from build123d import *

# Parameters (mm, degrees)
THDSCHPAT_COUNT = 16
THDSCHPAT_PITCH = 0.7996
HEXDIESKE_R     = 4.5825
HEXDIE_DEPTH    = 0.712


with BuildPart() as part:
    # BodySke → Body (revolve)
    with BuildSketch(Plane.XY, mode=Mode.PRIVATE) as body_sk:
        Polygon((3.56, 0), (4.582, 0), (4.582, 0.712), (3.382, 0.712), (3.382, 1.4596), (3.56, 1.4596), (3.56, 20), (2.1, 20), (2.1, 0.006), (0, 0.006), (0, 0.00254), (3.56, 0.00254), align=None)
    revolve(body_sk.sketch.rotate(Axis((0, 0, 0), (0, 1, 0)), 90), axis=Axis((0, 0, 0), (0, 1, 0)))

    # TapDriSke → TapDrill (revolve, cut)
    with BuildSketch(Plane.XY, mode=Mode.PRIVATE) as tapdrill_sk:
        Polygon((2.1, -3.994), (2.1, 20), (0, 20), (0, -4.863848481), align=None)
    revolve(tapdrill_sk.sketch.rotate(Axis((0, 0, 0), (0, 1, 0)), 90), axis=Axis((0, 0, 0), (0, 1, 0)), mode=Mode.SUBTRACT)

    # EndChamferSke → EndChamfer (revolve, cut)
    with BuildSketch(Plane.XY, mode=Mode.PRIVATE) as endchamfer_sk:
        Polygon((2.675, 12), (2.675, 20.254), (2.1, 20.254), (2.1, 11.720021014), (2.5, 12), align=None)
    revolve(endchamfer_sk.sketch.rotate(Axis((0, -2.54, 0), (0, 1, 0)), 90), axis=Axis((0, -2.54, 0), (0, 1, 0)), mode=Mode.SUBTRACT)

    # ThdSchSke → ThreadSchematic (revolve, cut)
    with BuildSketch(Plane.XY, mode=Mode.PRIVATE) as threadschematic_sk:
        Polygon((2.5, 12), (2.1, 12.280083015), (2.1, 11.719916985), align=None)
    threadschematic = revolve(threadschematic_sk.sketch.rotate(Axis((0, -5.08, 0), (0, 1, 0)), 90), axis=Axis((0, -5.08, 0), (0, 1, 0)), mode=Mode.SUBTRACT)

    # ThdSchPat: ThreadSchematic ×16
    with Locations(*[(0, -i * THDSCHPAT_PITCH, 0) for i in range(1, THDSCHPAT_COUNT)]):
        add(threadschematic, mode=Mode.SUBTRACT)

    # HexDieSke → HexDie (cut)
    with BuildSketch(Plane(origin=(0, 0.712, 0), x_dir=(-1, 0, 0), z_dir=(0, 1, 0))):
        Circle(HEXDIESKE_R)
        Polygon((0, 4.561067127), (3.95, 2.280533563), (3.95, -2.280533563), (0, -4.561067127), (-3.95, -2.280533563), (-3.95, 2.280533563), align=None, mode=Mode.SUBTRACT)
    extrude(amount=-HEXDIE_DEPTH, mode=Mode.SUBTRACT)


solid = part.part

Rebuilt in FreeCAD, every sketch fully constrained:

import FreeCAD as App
import Part
import Sketcher
Q = App.Units.Quantity

doc = App.newDocument("Part")
body = doc.addObject("PartDesign::Body", "Body")

# Sketch on XY plane
sketch1 = body.newObject("Sketcher::SketchObject", "Sketch")
sketch1.AttachmentSupport = (doc.getObject("XY_Plane"), [""])
sketch1.MapMode = "FlatFace"
sketch1.addGeometry([
    Part.LineSegment(App.Vector(3.56, 0, 0), App.Vector(4.582, 0, 0)),  # 0
    Part.LineSegment(App.Vector(4.582, 0, 0), App.Vector(4.582, 0.712, 0)),  # 1
    Part.LineSegment(App.Vector(4.582, 0.712, 0), App.Vector(3.382, 0.712, 0)),  # 2
    Part.LineSegment(App.Vector(3.382, 0.712, 0), App.Vector(3.382, 1.4596, 0)),  # 3
    Part.LineSegment(App.Vector(3.382, 1.4596, 0), App.Vector(3.56, 1.4596, 0)),  # 4
    Part.LineSegment(App.Vector(3.56, 1.4596, 0), App.Vector(3.56, 20, 0)),  # 5
    Part.LineSegment(App.Vector(3.56, 20, 0), App.Vector(2.1, 20, 0)),  # 6
    Part.LineSegment(App.Vector(2.1, 20, 0), App.Vector(2.1, 0.006, 0)),  # 7
    Part.LineSegment(App.Vector(2.1, 0.006, 0), App.Vector(0, 0.006, 0)),  # 8
    Part.LineSegment(App.Vector(0, 0.006, 0), App.Vector(0, 0.0025, 0)),  # 9
    Part.LineSegment(App.Vector(0, 0.0025, 0), App.Vector(3.56, 0.0025, 0)),  # 10
    Part.LineSegment(App.Vector(3.56, 0.0025, 0), App.Vector(3.56, 0, 0)),  # 11
], False)
sketch1.addConstraint([
    Sketcher.Constraint("Coincident", 0, 2, 1, 1),
    Sketcher.Constraint("Coincident", 1, 2, 2, 1),
    Sketcher.Constraint("Coincident", 2, 2, 3, 1),
    Sketcher.Constraint("Coincident", 3, 2, 4, 1),
    Sketcher.Constraint("Coincident", 4, 2, 5, 1),
    Sketcher.Constraint("Coincident", 5, 2, 6, 1),
    Sketcher.Constraint("Coincident", 6, 2, 7, 1),
    Sketcher.Constraint("Coincident", 7, 2, 8, 1),
    Sketcher.Constraint("Coincident", 8, 2, 9, 1),
    Sketcher.Constraint("Coincident", 9, 2, 10, 1),
    Sketcher.Constraint("Coincident", 10, 2, 11, 1),
    Sketcher.Constraint("Coincident", 11, 2, 0, 1),
    Sketcher.Constraint("Horizontal", 0),
    Sketcher.Constraint("Vertical", 1),
    Sketcher.Constraint("Horizontal", 2),
    Sketcher.Constraint("Vertical", 3),
    Sketcher.Constraint("Horizontal", 4),
    Sketcher.Constraint("Vertical", 5),
    Sketcher.Constraint("Horizontal", 6),
    Sketcher.Constraint("Vertical", 7),
    Sketcher.Constraint("Horizontal", 8),
    Sketcher.Constraint("Vertical", 9),
    Sketcher.Constraint("Horizontal", 10),
    Sketcher.Constraint("Vertical", 11),
    Sketcher.Constraint("PointOnObject", 0, 2, -1),
    Sketcher.Constraint("PointOnObject", 8, 2, -2),
    Sketcher.Constraint("Vertical", 5, 2, 10, 2),
    Sketcher.Constraint("DistanceX", 2, 2, 2, 1, 1.2),
    Sketcher.Constraint("DistanceX", 8, 2, 8, 1, 2.1),
    Sketcher.Constraint("DistanceY", -1, 1, 5, 2, 20.0),
    Sketcher.Constraint("DistanceX", 6, 2, 6, 1, 1.46),
    Sketcher.Constraint("DistanceX", 0, 1, 0, 2, 1.022),
    Sketcher.Constraint("DistanceY", 1, 1, 1, 2, 0.712),
    Sketcher.Constraint("DistanceY", 7, 2, 7, 1, 19.994),
    Sketcher.Constraint("DistanceY", 3, 1, 3, 2, 0.7476),
    Sketcher.Constraint("DistanceY", 9, 2, 9, 1, 0.00346),
])
revolution = body.newObject("PartDesign::Revolution", "Revolution")
revolution.Profile = sketch1
revolution.ReferenceAxis = (sketch1, ["V_Axis"])
revolution.Angle = 360

# Sketch on XY plane
sketch2 = body.newObject("Sketcher::SketchObject", "Sketch001")
sketch2.AttachmentSupport = (doc.getObject("XY_Plane"), [""])
sketch2.MapMode = "FlatFace"
sketch2.addGeometry([
    Part.LineSegment(App.Vector(2.1, -4, 0), App.Vector(2.1, 20, 0)),
    Part.LineSegment(App.Vector(2.1, 20, 0), App.Vector(0, 20, 0)),
    Part.LineSegment(App.Vector(0, 20, 0), App.Vector(0, -4.9, 0)),
    Part.LineSegment(App.Vector(0, -4.9, 0), App.Vector(2.1, -4, 0)),
], False)
sketch2.addConstraint([
    Sketcher.Constraint("Coincident", 0, 2, 1, 1),
    Sketcher.Constraint("Coincident", 1, 2, 2, 1),
    Sketcher.Constraint("Coincident", 2, 2, 3, 1),
    Sketcher.Constraint("Coincident", 3, 2, 0, 1),
    Sketcher.Constraint("Vertical", 0),
    Sketcher.Constraint("Horizontal", 1),
    Sketcher.Constraint("Vertical", 2),
    Sketcher.Constraint("PointOnObject", 1, 2, -2),
    Sketcher.Constraint("DistanceX", 1, 2, 1, 1, 2.1),
    Sketcher.Constraint("DistanceY", -1, 1, 0, 2, 20.0),
    Sketcher.Constraint("Angle", 3, Q("22.5 deg")),
    Sketcher.Constraint("DistanceY", 0, 1, 0, 2, 23.994),
])
groove = body.newObject("PartDesign::Groove", "Groove")
groove.Profile = sketch2
groove.ReferenceAxis = (sketch2, ["V_Axis"])
groove.Angle = 360

# Sketch on XY plane
sketch3 = body.newObject("Sketcher::SketchObject", "Sketch002")
sketch3.AttachmentSupport = (doc.getObject("XY_Plane"), [""])
sketch3.MapMode = "FlatFace"
sketch3.addGeometry([
    Part.LineSegment(App.Vector(2.67, 12, 0), App.Vector(2.67, 20.25, 0)),  # 0
    Part.LineSegment(App.Vector(2.67, 20.25, 0), App.Vector(2.1, 20.25, 0)),  # 1
    Part.LineSegment(App.Vector(2.1, 20.25, 0), App.Vector(2.1, 11.72, 0)),  # 2
    Part.LineSegment(App.Vector(2.1, 11.72, 0), App.Vector(2.5, 12, 0)),  # 3
    Part.LineSegment(App.Vector(2.5, 12, 0), App.Vector(2.67, 12, 0)),  # 4
], False)
sketch3.addConstraint([
    Sketcher.Constraint("Coincident", 0, 2, 1, 1),
    Sketcher.Constraint("Coincident", 1, 2, 2, 1),
    Sketcher.Constraint("Coincident", 2, 2, 3, 1),
    Sketcher.Constraint("Coincident", 3, 2, 4, 1),
    Sketcher.Constraint("Coincident", 4, 2, 0, 1),
    Sketcher.Constraint("Vertical", 0),
    Sketcher.Constraint("Horizontal", 1),
    Sketcher.Constraint("Vertical", 2),
    Sketcher.Constraint("Horizontal", 4),
    Sketcher.Constraint("DistanceY", -1, 1, 3, 2, 12.0),
    Sketcher.Constraint("DistanceX", -1, 1, 1, 2, 2.1),
    Sketcher.Constraint("DistanceX", -1, 1, 3, 2, 2.5),
    Sketcher.Constraint("Angle", 3, Q("34.99 deg")),
    Sketcher.Constraint("DistanceX", 1, 2, 1, 1, 0.575),
    Sketcher.Constraint("DistanceY", 0, 1, 0, 2, 8.254),
])
groove2 = body.newObject("PartDesign::Groove", "Groove001")
groove2.Profile = sketch3
groove2.ReferenceAxis = (sketch3, ["V_Axis"])
groove2.Angle = 360

# Sketch on XY plane
sketch4 = body.newObject("Sketcher::SketchObject", "Sketch003")
sketch4.AttachmentSupport = (doc.getObject("XY_Plane"), [""])
sketch4.MapMode = "FlatFace"
sketch4.addGeometry([
    Part.LineSegment(App.Vector(2.5, 12, 0), App.Vector(2.1, 12.28, 0)),
    Part.LineSegment(App.Vector(2.1, 12.28, 0), App.Vector(2.1, 11.72, 0)),
    Part.LineSegment(App.Vector(2.1, 11.72, 0), App.Vector(2.5, 12, 0)),
], False)
sketch4.addConstraint([
    Sketcher.Constraint("Coincident", 0, 2, 1, 1),
    Sketcher.Constraint("Coincident", 1, 2, 2, 1),
    Sketcher.Constraint("Coincident", 2, 2, 0, 1),
    Sketcher.Constraint("Vertical", 1),
    Sketcher.Constraint("Equal", 0, 2),
    Sketcher.Constraint("Angle", 0, Q("145 deg")),
    Sketcher.Constraint("DistanceY", -1, 1, 2, 2, 12.0),
    Sketcher.Constraint("DistanceX", -1, 1, 0, 2, 2.1),
    Sketcher.Constraint("DistanceX", -1, 1, 2, 2, 2.5),
])
groove3 = body.newObject("PartDesign::Groove", "Groove002")
groove3.Profile = sketch4
groove3.ReferenceAxis = (sketch4, ["V_Axis"])
groove3.Angle = 360
doc.recompute()

linearpattern = body.newObject("PartDesign::LinearPattern", "LinearPattern")
linearpattern.Originals = [groove3]
linearpattern.Direction = (doc.getObject("Y_Axis"), [""])
linearpattern.Mode = "offset"
linearpattern.Offset = 0.7996
linearpattern.Occurrences = 16
linearpattern.Reversed = True
body.Tip = linearpattern

# Sketch on XZ plane
sketch5 = body.newObject("Sketcher::SketchObject", "Sketch004")
sketch5.AttachmentSupport = (doc.getObject("XZ_Plane"), [""])
sketch5.MapMode = "FlatFace"
sketch5.AttachmentOffset = App.Placement(App.Vector(0, 0, -0.712), App.Rotation())
sketch5.addGeometry([
    Part.Circle(App.Vector(0, 0, 0), App.Vector(0, 0, 1), 4.6),  # 0
    Part.LineSegment(App.Vector(4, 2.3, 0), App.Vector(0, 4.6, 0)),  # 1
    Part.LineSegment(App.Vector(0, 4.6, 0), App.Vector(-4, 2.3, 0)),  # 2
    Part.LineSegment(App.Vector(-4, 2.3, 0), App.Vector(-4, -2.3, 0)),  # 3
    Part.LineSegment(App.Vector(-4, -2.3, 0), App.Vector(0, -4.6, 0)),  # 4
    Part.LineSegment(App.Vector(0, -4.6, 0), App.Vector(4, -2.3, 0)),  # 5
    Part.LineSegment(App.Vector(4, -2.3, 0), App.Vector(4, 2.3, 0)),  # 6
], False)
sketch5.addConstraint([
    Sketcher.Constraint("Coincident", 1, 2, 2, 1),
    Sketcher.Constraint("Coincident", 2, 2, 3, 1),
    Sketcher.Constraint("Coincident", 3, 2, 4, 1),
    Sketcher.Constraint("Coincident", 4, 2, 5, 1),
    Sketcher.Constraint("Coincident", 5, 2, 6, 1),
    Sketcher.Constraint("Coincident", 6, 2, 1, 1),
    Sketcher.Constraint("Vertical", 3),
    Sketcher.Constraint("Vertical", 6),
    Sketcher.Constraint("Coincident", 0, 3, -1, 1),
    Sketcher.Constraint("Symmetric", 1, 2, 4, 2, -1, 1),
    Sketcher.Constraint("Symmetric", 2, 2, 5, 2, -1, 1),
    Sketcher.Constraint("PointOnObject", 1, 2, -2),
    Sketcher.Constraint("Parallel", 1, 4),
    Sketcher.Constraint("Horizontal", 3, 2, 5, 2),
    Sketcher.Constraint("Angle", 1, Q("150 deg")),
    Sketcher.Constraint("Diameter", 0, 9.165),
    Sketcher.Constraint("DistanceX", 3, 2, 5, 2, 7.9),
    Sketcher.Constraint("DistanceY", 3, 2, 1, 2, 6.841601),
])
pocket1 = body.newObject("PartDesign::Pocket", "Pocket")
pocket1.Profile = sketch5
pocket1.Length = 0.712
pocket1.Reversed = True

doc.recompute()
